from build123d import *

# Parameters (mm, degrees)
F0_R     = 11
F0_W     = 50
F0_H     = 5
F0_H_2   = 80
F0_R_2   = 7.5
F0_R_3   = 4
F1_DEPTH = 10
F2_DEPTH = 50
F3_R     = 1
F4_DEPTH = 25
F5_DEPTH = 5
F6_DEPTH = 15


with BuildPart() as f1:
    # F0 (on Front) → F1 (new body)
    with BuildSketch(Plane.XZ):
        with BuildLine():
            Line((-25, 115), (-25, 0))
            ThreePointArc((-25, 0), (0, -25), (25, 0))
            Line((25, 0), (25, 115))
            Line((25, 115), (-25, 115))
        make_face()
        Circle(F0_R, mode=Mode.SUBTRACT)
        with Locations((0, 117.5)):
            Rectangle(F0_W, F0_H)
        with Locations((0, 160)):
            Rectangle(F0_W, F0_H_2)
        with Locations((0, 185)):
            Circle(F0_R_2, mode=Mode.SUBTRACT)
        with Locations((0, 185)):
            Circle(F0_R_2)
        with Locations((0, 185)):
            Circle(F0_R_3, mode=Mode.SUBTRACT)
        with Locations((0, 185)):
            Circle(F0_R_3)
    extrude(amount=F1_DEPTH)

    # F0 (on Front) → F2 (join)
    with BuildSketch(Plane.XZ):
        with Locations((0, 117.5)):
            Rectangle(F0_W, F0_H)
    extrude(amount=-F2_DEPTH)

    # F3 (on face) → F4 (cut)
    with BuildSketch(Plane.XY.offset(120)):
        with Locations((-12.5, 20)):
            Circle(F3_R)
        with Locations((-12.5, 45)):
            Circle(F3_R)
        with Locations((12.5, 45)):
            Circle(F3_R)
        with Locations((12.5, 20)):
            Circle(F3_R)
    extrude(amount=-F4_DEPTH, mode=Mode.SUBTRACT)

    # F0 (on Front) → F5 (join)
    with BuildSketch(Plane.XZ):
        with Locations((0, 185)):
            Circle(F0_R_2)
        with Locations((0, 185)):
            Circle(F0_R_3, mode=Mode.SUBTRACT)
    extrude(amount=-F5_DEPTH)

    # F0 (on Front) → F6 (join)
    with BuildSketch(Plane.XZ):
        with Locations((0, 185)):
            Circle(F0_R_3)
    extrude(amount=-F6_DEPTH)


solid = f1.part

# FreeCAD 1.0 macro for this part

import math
import FreeCAD as App
import Part
import Sketcher

V = App.Vector


def add_polygon(sketch, points):
    """Adds a closed chain of lines whose ends are joined by coincident constraints."""
    first, n = sketch.GeometryCount, len(points)
    for a, b in zip(points, points[1:] + points[:1]):
        sketch.addGeometry(Part.LineSegment(App.Vector(*a, 0), App.Vector(*b, 0)), False)
    for i in range(n):
        sketch.addConstraint(Sketcher.Constraint("Coincident", first + i, 2, first + (i + 1) % n, 1))

doc = App.newDocument("Part")
params = doc.addObject("Spreadsheet::Sheet", "Params")
for row, (alias, value) in enumerate([
    ("sketch1_diameter", "22 mm"),
    ("sketch1_radius", "25 mm"),
    ("sketch1_height", "200 mm"),
    ("pad1_length", "10 mm"),
    ("sketch2_width", "50 mm"),
    ("sketch2_height", "5 mm"),
    ("pad2_length", "50 mm"),
    ("sketch3_diameter", "2 mm"),
    ("pocket1_length", "25 mm"),
    ("sketch4_diameter", "15 mm"),
    ("sketch4_diameter2", "8 mm"),
    ("pad3_length", "5 mm"),
    ("sketch5_diameter", "8 mm"),
    ("pad4_length", "15 mm"),
], start=1):
    params.set(f"A{row}", alias)
    params.set(f"B{row}", "=" + value)
    params.setAlias(f"B{row}", alias)

body = doc.addObject("PartDesign::Body", "Body")

# Sketch on XZ plane
sketch1 = doc.addObject("Sketcher::SketchObject", "Sketch")
body.addObject(sketch1)
sketch1.AttachmentSupport = (doc.XZ_Plane, [""])
sketch1.MapMode = "FlatFace"
sketch1.addGeometry([
    Part.ArcOfCircle(Part.Circle(V(0, 0, 0), V(0, 0, 1), 25), math.radians(180), math.radians(360)),  # 0
    Part.LineSegment(V(25, 0, 0), V(25, 200, 0)),  # 1
    Part.LineSegment(V(25, 200, 0), V(-25, 200, 0)),  # 2
    Part.LineSegment(V(-25, 200, 0), V(-25, 0, 0)),  # 3
    Part.Circle(V(0, 0, 0), V(0, 0, 1), 11),  # 4
], False)
sketch1.addConstraint([
    Sketcher.Constraint("Tangent", 0, 2, 1, 1),
    Sketcher.Constraint("Coincident", 1, 2, 2, 1),
    Sketcher.Constraint("Coincident", 2, 2, 3, 1),
    Sketcher.Constraint("Tangent", 3, 2, 0, 1),
    Sketcher.Constraint("Vertical", 1),
    Sketcher.Constraint("Horizontal", 2),
    Sketcher.Constraint("Vertical", 3),
    Sketcher.Constraint("Coincident", 0, 3, -1, 1),
    Sketcher.Constraint("Coincident", 4, 3, -1, 1),
    Sketcher.Constraint("Diameter", 4, 22.0),
    Sketcher.Constraint("Radius", 0, 25.0),
    Sketcher.Constraint("DistanceY", 1, 1, 1, 2, 200.0),
])
sketch1.setExpression("Constraints[9]", "Params.sketch1_diameter")
sketch1.setExpression("Constraints[10]", "Params.sketch1_radius")
sketch1.setExpression("Constraints[11]", "Params.sketch1_height")
pad1 = doc.addObject("PartDesign::Pad", "Pad")
body.addObject(pad1)
pad1.Profile = sketch1
pad1.setExpression("Length", "Params.pad1_length")

# Sketch on XZ plane
sketch2 = doc.addObject("Sketcher::SketchObject", "Sketch001")
body.addObject(sketch2)
sketch2.AttachmentSupport = (doc.XZ_Plane, [""])
sketch2.MapMode = "FlatFace"
add_polygon(sketch2, [(-25, 120), (-25, 115), (25, 115), (25, 120)])  # lines 0-3
sketch2.addConstraint([
    Sketcher.Constraint("Vertical", 0),
    Sketcher.Constraint("Horizontal", 1),
    Sketcher.Constraint("Vertical", 2),
    Sketcher.Constraint("Horizontal", 3),
    Sketcher.Constraint("DistanceX", 1, 1, 1, 2, 50.0),
    Sketcher.Constraint("DistanceY", 0, 2, 0, 1, 5.0),
    Sketcher.Constraint("DistanceX", 0, 2, -1, 1, 25.0),
    Sketcher.Constraint("DistanceY", -1, 1, 0, 2, 115.0),
])
sketch2.setExpression("Constraints[8]", "Params.sketch2_width")
sketch2.setExpression("Constraints[9]", "Params.sketch2_height")
pad2 = doc.addObject("PartDesign::Pad", "Pad001")
body.addObject(pad2)
pad2.Profile = sketch2
pad2.setExpression("Length", "Params.pad2_length")
pad2.Reversed = True

# Sketch on XY plane
sketch3 = doc.addObject("Sketcher::SketchObject", "Sketch002")
body.addObject(sketch3)
sketch3.AttachmentSupport = (doc.XY_Plane, [""])
sketch3.MapMode = "FlatFace"
sketch3.AttachmentOffset = App.Placement(V(0, 0, 120), App.Rotation())
sketch3.addGeometry([
    Part.Circle(V(-12.5, 20, 0), V(0, 0, 1), 1),
    Part.Circle(V(-12.5, 45, 0), V(0, 0, 1), 1),
    Part.Circle(V(12.5, 45, 0), V(0, 0, 1), 1),
    Part.Circle(V(12.5, 20, 0), V(0, 0, 1), 1),
], False)
sketch3.addConstraint([
    Sketcher.Constraint("Equal", 0, 1),
    Sketcher.Constraint("Equal", 1, 2),
    Sketcher.Constraint("Equal", 2, 3),
    Sketcher.Constraint("Symmetric", 1, 3, 2, 3, -2),
    Sketcher.Constraint("Symmetric", 0, 3, 3, 3, -2),
    Sketcher.Constraint("Vertical", 0, 3, 1, 3),
    Sketcher.Constraint("Diameter", 0, 2.0),
    Sketcher.Constraint("DistanceY", -1, 1, 0, 3, 20.0),
    Sketcher.Constraint("DistanceY", -1, 1, 1, 3, 45.0),
    Sketcher.Constraint("DistanceX", 1, 3, 2, 3, 25.0),
])
sketch3.setExpression("Constraints[6]", "Params.sketch3_diameter")
pocket1 = doc.addObject("PartDesign::Pocket", "Pocket")
body.addObject(pocket1)
pocket1.Profile = sketch3
pocket1.setExpression("Length", "Params.pocket1_length")

# Sketch on XZ plane
sketch4 = doc.addObject("Sketcher::SketchObject", "Sketch003")
body.addObject(sketch4)
sketch4.AttachmentSupport = (doc.XZ_Plane, [""])
sketch4.MapMode = "FlatFace"
sketch4.addGeometry([
    Part.Circle(V(0, 185, 0), V(0, 0, 1), 7.5),
    Part.Circle(V(0, 185, 0), V(0, 0, 1), 4),
], False)
sketch4.addConstraint([
    Sketcher.Constraint("Coincident", 1, 3, 0, 3),
    Sketcher.Constraint("PointOnObject", 0, 3, -2),
    Sketcher.Constraint("Diameter", 0, 15.0),
    Sketcher.Constraint("Diameter", 1, 8.0),
    Sketcher.Constraint("DistanceY", -1, 1, 0, 3, 185.0),
])
sketch4.setExpression("Constraints[2]", "Params.sketch4_diameter")
sketch4.setExpression("Constraints[3]", "Params.sketch4_diameter2")
pad3 = doc.addObject("PartDesign::Pad", "Pad002")
body.addObject(pad3)
pad3.Profile = sketch4
pad3.setExpression("Length", "Params.pad3_length")
pad3.Reversed = True

# Sketch on XZ plane
sketch5 = doc.addObject("Sketcher::SketchObject", "Sketch004")
body.addObject(sketch5)
sketch5.AttachmentSupport = (doc.XZ_Plane, [""])
sketch5.MapMode = "FlatFace"
sketch5.addGeometry(Part.Circle(V(0, 185, 0), V(0, 0, 1), 4), False)
sketch5.addConstraint([
    Sketcher.Constraint("PointOnObject", 0, 3, -2),
    Sketcher.Constraint("Diameter", 0, 8.0),
    Sketcher.Constraint("DistanceY", -1, 1, 0, 3, 185.0),
])
sketch5.setExpression("Constraints[1]", "Params.sketch5_diameter")
pad4 = doc.addObject("PartDesign::Pad", "Pad003")
body.addObject(pad4)
pad4.Profile = sketch5
pad4.setExpression("Length", "Params.pad4_length")
pad4.Reversed = True

doc.recompute()
